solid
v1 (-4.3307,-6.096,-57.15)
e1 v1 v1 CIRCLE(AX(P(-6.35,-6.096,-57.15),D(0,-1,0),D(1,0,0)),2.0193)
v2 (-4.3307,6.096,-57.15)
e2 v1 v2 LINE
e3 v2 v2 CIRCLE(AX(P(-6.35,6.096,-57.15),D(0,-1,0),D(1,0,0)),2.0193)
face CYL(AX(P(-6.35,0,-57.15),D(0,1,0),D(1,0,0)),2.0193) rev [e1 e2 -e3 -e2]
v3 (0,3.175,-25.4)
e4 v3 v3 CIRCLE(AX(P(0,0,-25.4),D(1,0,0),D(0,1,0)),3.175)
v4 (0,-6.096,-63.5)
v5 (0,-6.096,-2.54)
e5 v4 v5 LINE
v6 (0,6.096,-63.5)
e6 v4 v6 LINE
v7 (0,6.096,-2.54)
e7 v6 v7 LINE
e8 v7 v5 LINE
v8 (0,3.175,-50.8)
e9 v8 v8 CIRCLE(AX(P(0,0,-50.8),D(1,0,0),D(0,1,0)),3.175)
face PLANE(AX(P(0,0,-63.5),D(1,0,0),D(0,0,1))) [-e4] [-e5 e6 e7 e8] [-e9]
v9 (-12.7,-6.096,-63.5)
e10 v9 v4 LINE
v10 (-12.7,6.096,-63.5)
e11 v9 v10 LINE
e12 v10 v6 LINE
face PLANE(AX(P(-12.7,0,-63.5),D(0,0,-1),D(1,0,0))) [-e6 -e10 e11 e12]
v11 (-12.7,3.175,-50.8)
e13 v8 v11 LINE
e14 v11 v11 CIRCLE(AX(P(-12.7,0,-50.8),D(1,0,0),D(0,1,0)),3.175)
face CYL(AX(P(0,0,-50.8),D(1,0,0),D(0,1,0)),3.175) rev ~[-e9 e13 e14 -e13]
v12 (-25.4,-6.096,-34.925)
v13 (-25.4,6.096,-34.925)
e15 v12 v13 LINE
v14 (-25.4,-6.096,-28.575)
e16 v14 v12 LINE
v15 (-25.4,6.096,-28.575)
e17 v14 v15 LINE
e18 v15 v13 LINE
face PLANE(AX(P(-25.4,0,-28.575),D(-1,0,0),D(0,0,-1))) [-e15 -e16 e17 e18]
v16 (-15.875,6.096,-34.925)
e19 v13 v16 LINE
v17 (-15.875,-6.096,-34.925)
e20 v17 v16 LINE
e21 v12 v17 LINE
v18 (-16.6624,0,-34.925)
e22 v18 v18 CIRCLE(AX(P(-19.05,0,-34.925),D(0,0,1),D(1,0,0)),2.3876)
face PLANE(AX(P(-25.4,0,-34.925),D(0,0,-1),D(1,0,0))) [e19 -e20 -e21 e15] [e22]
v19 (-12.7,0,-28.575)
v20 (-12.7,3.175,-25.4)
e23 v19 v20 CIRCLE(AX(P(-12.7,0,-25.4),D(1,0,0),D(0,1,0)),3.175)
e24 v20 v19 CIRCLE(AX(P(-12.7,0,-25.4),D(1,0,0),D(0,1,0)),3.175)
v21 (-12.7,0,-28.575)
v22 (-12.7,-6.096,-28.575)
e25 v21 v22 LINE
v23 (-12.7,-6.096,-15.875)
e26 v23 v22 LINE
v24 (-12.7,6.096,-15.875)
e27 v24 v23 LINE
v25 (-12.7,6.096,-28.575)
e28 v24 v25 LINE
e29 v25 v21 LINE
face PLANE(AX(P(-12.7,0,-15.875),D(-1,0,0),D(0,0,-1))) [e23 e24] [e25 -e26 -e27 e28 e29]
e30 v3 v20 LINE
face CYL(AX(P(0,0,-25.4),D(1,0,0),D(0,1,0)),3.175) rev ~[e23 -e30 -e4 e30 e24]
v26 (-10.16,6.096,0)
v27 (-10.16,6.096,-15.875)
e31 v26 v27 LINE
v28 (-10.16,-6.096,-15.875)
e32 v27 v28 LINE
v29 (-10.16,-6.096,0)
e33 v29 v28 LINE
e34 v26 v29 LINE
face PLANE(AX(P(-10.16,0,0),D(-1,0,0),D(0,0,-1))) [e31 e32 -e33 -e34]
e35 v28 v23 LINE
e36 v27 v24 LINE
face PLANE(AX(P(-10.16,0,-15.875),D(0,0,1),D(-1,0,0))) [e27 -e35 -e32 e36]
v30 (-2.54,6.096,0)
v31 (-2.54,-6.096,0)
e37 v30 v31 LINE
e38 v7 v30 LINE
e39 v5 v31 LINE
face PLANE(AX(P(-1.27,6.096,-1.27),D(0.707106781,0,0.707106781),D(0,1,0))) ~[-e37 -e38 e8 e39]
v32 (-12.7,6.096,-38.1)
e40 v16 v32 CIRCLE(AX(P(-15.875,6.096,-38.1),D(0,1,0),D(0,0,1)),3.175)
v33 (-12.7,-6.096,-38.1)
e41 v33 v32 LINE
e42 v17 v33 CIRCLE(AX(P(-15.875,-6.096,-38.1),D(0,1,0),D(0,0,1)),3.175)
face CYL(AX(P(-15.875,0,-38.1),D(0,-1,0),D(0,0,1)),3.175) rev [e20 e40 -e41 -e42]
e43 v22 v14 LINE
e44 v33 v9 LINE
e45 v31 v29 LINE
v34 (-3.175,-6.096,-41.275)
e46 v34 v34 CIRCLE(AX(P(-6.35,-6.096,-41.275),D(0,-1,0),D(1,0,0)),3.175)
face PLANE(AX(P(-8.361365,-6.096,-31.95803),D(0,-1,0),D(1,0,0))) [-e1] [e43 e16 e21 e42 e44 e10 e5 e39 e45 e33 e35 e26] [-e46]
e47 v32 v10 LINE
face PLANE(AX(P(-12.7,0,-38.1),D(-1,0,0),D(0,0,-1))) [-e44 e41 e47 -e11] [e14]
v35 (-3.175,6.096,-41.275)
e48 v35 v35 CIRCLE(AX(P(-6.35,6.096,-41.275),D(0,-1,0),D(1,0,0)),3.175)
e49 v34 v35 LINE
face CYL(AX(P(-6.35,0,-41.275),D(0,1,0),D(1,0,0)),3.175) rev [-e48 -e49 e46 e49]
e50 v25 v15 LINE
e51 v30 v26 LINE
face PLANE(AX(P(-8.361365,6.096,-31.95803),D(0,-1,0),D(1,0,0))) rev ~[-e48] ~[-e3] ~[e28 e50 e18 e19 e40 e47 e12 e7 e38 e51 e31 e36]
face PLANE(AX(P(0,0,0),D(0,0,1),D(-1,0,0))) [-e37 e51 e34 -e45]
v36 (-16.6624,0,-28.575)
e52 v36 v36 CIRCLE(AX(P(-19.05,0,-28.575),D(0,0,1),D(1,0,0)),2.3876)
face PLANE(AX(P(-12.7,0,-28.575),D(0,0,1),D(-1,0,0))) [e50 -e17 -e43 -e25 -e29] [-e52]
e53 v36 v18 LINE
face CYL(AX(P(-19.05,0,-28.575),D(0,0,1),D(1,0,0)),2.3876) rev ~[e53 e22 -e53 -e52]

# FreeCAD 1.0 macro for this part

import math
import FreeCAD as App
import Part
import Sketcher
from FreeCAD import Vector
Q = App.Units.Quantity


def edges_at(feature, points):
    """Names of the edges that pass closest to the given points."""
    edges = feature.Shape.Edges
    near = lambda p: min(range(len(edges)), key=lambda i: edges[i].distToShape(Part.Vertex(*p))[0])
    return sorted({f"Edge{near(p) + 1}" for p in points})

doc = App.newDocument("Part")
params = doc.addObject("Spreadsheet::Sheet", "Params")
for row, (alias, value) in enumerate([
    ("sketch1_diameter", "0.25 in"),
    ("sketch1_height", "1 in"),
    ("sketch1_diameter2", "0.159 in"),
    ("sketch1_width", "0.4 in"),
    ("sketch1_width2", "0.1 in"),
    ("pad1_length", "0.48 in"),
    ("sketch2_diameter", "0.25 in"),
    ("sketch3_diameter", "0.188 in"),
    ("chamfer_size", "0.1 in"),
], start=1):
    params.set(f"A{row}", alias)
    params.set(f"B{row}", "=" + value)
    params.setAlias(f"B{row}", alias)

body = doc.addObject("PartDesign::Body", "Body")

# Sketch on XZ plane
sketch1 = doc.addObject("Sketcher::SketchObject", "Sketch")
body.addObject(sketch1)
sketch1.AttachmentSupport = (doc.XZ_Plane, [""])
sketch1.MapMode = "FlatFace"
sketch1.addGeometry([
    Part.LineSegment(Vector(0, -63.5, 0), Vector(0, 0, 0)),  # 0
    Part.LineSegment(Vector(0, 0, 0), Vector(-10.2, 0, 0)),  # 1
    Part.LineSegment(Vector(-10.2, 0, 0), Vector(-10.2, -15.9, 0)),  # 2
    Part.LineSegment(Vector(-10.2, -15.9, 0), Vector(-12.7, -15.9, 0)),  # 3
    Part.LineSegment(Vector(-12.7, -15.9, 0), Vector(-12.7, -28.6, 0)),  # 4
    Part.LineSegment(Vector(-12.7, -28.6, 0), Vector(-25.4, -28.6, 0)),  # 5
    Part.LineSegment(Vector(-25.4, -28.6, 0), Vector(-25.4, -34.9, 0)),  # 6
    Part.LineSegment(Vector(-25.4, -34.9, 0), Vector(-15.9, -34.9, 0)),  # 7
    Part.ArcOfCircle(Part.Circle(Vector(-15.9, -38.1, 0), Vector(0, 0, 1), 3.2), math.radians(0), math.radians(90)),  # 8
    Part.LineSegment(Vector(-12.7, -38.1, 0), Vector(-12.7, -63.5, 0)),  # 9
    Part.LineSegment(Vector(-12.7, -63.5, 0), Vector(0, -63.5, 0)),  # 10
    Part.Circle(Vector(-6.3, -57.1, 0), Vector(0, 0, 1), 2),  # 11
    Part.Circle(Vector(-6.3, -41.3, 0), Vector(0, 0, 1), 3.2),  # 12
], False)
sketch1.addConstraint([
    Sketcher.Constraint("Coincident", 0, 2, 1, 1),
    Sketcher.Constraint("Coincident", 1, 2, 2, 1),
    Sketcher.Constraint("Coincident", 2, 2, 3, 1),
    Sketcher.Constraint("Coincident", 3, 2, 4, 1),
    Sketcher.Constraint("Coincident", 4, 2, 5, 1),
    Sketcher.Constraint("Coincident", 5, 2, 6, 1),
    Sketcher.Constraint("Coincident", 6, 2, 7, 1),
    Sketcher.Constraint("Tangent", 7, 2, 8, 2),
    Sketcher.Constraint("Tangent", 8, 1, 9, 1),
    Sketcher.Constraint("Coincident", 9, 2, 10, 1),
    Sketcher.Constraint("Coincident", 10, 2, 0, 1),
    Sketcher.Constraint("Vertical", 0),
    Sketcher.Constraint("Horizontal", 1),
    Sketcher.Constraint("Vertical", 2),
    Sketcher.Constraint("Horizontal", 3),
    Sketcher.Constraint("Vertical", 4),
    Sketcher.Constraint("Horizontal", 5),
    Sketcher.Constraint("Vertical", 6),
    Sketcher.Constraint("Horizontal", 7),
    Sketcher.Constraint("Vertical", 9),
    Sketcher.Constraint("Horizontal", 10),
    Sketcher.Constraint("Coincident", 0, 2, -1, 1),
    Sketcher.Constraint("Equal", 8, 12),
    Sketcher.Constraint("Vertical", 11, 3, 12, 3),
    Sketcher.Constraint("Vertical", 4, 2, 8, 1),
    Sketcher.Constraint("Equal", 5, 10),
    Sketcher.Constraint("Equal", 10, 4),
    Sketcher.Constraint("Diameter", 12, Q("0.25 in")),
    Sketcher.Constraint("DistanceY", 9, 2, 9, 1, Q("1 in")),
    Sketcher.Constraint("Diameter", 11, Q("0.159 in")),
    Sketcher.Constraint("DistanceX", 1, 2, 1, 1, Q("0.4 in")),
    Sketcher.Constraint("DistanceX", 3, 2, 3, 1, Q("0.1 in")),
    Sketcher.Constraint("DistanceY", 0, 1, 0, 2, Q("2.5 in")),
    Sketcher.Constraint("DistanceY", 12, 3, 2, 2, Q("1 in")),
    Sketcher.Constraint("DistanceY", 6, 2, 6, 1, Q("0.25 in")),
    Sketcher.Constraint("DistanceX", 11, 3, -1, 1, Q("0.25 in")),
    Sketcher.Constraint("DistanceY", 11, 3, -1, 1, Q("2.25 in")),
])
sketch1.setExpression("Constraints[27]", "Params.sketch1_diameter")
sketch1.setExpression("Constraints[28]", "Params.sketch1_height")
sketch1.setExpression("Constraints[29]", "Params.sketch1_diameter2")
sketch1.setExpression("Constraints[30]", "Params.sketch1_width")
sketch1.setExpression("Constraints[31]", "Params.sketch1_width2")
pad1 = doc.addObject("PartDesign::Pad", "Pad")
body.addObject(pad1)
pad1.Profile = sketch1
pad1.setExpression("Length", "Params.pad1_length")
pad1.Midplane = True

# Sketch on YZ plane
sketch2 = doc.addObject("Sketcher::SketchObject", "Sketch001")
body.addObject(sketch2)
sketch2.AttachmentSupport = (doc.YZ_Plane, [""])
sketch2.MapMode = "FlatFace"
sketch2.addGeometry([
    Part.Circle(Vector(0, -25.4, 0), Vector(0, 0, 1), 3.2),
    Part.Circle(Vector(0, -50.8, 0), Vector(0, 0, 1), 3.2),
], False)
sketch2.addConstraint([
    Sketcher.Constraint("Equal", 0, 1),
    Sketcher.Constraint("PointOnObject", 0, 3, -2),
    Sketcher.Constraint("PointOnObject", 1, 3, -2),
    Sketcher.Constraint("Diameter", 0, Q("0.25 in")),
    Sketcher.Constraint("DistanceY", 0, 3, -1, 1, Q("1 in")),
    Sketcher.Constraint("DistanceY", 1, 3, -1, 1, Q("2 in")),
])
sketch2.setExpression("Constraints[3]", "Params.sketch2_diameter")
pocket1 = doc.addObject("PartDesign::Pocket", "Pocket")
body.addObject(pocket1)
pocket1.Profile = sketch2
pocket1.Type = "ThroughAll"

# Sketch on XY plane
sketch3 = doc.addObject("Sketcher::SketchObject", "Sketch002")
body.addObject(sketch3)
sketch3.AttachmentSupport = (doc.XY_Plane, [""])
sketch3.MapMode = "FlatFace"
sketch3.AttachmentOffset = App.Placement(Vector(0, 0, -1.125 * 25.4), App.Rotation())
sketch3.addGeometry(Part.Circle(Vector(-19.1, 0, 0), Vector(0, 0, 1), 2.4), False)
sketch3.addConstraint([
    Sketcher.Constraint("PointOnObject", 0, 3, -1),
    Sketcher.Constraint("Diameter", 0, Q("0.188 in")),
    Sketcher.Constraint("DistanceX", 0, 3, -1, 1, Q("0.75 in")),
])
sketch3.setExpression("Constraints[1]", "Params.sketch3_diameter")
pocket2 = doc.addObject("PartDesign::Pocket", "Pocket001")
body.addObject(pocket2)
pocket2.Profile = sketch3
pocket2.Type = "ThroughAll"
doc.recompute()

chamfer = doc.addObject("PartDesign::Chamfer", "Chamfer")
body.addObject(chamfer)
chamfer.Base = (pocket2, edges_at(pocket2, [(0, 0, 0)]))
chamfer.setExpression("Size", "Params.chamfer_size")

doc.recompute()
